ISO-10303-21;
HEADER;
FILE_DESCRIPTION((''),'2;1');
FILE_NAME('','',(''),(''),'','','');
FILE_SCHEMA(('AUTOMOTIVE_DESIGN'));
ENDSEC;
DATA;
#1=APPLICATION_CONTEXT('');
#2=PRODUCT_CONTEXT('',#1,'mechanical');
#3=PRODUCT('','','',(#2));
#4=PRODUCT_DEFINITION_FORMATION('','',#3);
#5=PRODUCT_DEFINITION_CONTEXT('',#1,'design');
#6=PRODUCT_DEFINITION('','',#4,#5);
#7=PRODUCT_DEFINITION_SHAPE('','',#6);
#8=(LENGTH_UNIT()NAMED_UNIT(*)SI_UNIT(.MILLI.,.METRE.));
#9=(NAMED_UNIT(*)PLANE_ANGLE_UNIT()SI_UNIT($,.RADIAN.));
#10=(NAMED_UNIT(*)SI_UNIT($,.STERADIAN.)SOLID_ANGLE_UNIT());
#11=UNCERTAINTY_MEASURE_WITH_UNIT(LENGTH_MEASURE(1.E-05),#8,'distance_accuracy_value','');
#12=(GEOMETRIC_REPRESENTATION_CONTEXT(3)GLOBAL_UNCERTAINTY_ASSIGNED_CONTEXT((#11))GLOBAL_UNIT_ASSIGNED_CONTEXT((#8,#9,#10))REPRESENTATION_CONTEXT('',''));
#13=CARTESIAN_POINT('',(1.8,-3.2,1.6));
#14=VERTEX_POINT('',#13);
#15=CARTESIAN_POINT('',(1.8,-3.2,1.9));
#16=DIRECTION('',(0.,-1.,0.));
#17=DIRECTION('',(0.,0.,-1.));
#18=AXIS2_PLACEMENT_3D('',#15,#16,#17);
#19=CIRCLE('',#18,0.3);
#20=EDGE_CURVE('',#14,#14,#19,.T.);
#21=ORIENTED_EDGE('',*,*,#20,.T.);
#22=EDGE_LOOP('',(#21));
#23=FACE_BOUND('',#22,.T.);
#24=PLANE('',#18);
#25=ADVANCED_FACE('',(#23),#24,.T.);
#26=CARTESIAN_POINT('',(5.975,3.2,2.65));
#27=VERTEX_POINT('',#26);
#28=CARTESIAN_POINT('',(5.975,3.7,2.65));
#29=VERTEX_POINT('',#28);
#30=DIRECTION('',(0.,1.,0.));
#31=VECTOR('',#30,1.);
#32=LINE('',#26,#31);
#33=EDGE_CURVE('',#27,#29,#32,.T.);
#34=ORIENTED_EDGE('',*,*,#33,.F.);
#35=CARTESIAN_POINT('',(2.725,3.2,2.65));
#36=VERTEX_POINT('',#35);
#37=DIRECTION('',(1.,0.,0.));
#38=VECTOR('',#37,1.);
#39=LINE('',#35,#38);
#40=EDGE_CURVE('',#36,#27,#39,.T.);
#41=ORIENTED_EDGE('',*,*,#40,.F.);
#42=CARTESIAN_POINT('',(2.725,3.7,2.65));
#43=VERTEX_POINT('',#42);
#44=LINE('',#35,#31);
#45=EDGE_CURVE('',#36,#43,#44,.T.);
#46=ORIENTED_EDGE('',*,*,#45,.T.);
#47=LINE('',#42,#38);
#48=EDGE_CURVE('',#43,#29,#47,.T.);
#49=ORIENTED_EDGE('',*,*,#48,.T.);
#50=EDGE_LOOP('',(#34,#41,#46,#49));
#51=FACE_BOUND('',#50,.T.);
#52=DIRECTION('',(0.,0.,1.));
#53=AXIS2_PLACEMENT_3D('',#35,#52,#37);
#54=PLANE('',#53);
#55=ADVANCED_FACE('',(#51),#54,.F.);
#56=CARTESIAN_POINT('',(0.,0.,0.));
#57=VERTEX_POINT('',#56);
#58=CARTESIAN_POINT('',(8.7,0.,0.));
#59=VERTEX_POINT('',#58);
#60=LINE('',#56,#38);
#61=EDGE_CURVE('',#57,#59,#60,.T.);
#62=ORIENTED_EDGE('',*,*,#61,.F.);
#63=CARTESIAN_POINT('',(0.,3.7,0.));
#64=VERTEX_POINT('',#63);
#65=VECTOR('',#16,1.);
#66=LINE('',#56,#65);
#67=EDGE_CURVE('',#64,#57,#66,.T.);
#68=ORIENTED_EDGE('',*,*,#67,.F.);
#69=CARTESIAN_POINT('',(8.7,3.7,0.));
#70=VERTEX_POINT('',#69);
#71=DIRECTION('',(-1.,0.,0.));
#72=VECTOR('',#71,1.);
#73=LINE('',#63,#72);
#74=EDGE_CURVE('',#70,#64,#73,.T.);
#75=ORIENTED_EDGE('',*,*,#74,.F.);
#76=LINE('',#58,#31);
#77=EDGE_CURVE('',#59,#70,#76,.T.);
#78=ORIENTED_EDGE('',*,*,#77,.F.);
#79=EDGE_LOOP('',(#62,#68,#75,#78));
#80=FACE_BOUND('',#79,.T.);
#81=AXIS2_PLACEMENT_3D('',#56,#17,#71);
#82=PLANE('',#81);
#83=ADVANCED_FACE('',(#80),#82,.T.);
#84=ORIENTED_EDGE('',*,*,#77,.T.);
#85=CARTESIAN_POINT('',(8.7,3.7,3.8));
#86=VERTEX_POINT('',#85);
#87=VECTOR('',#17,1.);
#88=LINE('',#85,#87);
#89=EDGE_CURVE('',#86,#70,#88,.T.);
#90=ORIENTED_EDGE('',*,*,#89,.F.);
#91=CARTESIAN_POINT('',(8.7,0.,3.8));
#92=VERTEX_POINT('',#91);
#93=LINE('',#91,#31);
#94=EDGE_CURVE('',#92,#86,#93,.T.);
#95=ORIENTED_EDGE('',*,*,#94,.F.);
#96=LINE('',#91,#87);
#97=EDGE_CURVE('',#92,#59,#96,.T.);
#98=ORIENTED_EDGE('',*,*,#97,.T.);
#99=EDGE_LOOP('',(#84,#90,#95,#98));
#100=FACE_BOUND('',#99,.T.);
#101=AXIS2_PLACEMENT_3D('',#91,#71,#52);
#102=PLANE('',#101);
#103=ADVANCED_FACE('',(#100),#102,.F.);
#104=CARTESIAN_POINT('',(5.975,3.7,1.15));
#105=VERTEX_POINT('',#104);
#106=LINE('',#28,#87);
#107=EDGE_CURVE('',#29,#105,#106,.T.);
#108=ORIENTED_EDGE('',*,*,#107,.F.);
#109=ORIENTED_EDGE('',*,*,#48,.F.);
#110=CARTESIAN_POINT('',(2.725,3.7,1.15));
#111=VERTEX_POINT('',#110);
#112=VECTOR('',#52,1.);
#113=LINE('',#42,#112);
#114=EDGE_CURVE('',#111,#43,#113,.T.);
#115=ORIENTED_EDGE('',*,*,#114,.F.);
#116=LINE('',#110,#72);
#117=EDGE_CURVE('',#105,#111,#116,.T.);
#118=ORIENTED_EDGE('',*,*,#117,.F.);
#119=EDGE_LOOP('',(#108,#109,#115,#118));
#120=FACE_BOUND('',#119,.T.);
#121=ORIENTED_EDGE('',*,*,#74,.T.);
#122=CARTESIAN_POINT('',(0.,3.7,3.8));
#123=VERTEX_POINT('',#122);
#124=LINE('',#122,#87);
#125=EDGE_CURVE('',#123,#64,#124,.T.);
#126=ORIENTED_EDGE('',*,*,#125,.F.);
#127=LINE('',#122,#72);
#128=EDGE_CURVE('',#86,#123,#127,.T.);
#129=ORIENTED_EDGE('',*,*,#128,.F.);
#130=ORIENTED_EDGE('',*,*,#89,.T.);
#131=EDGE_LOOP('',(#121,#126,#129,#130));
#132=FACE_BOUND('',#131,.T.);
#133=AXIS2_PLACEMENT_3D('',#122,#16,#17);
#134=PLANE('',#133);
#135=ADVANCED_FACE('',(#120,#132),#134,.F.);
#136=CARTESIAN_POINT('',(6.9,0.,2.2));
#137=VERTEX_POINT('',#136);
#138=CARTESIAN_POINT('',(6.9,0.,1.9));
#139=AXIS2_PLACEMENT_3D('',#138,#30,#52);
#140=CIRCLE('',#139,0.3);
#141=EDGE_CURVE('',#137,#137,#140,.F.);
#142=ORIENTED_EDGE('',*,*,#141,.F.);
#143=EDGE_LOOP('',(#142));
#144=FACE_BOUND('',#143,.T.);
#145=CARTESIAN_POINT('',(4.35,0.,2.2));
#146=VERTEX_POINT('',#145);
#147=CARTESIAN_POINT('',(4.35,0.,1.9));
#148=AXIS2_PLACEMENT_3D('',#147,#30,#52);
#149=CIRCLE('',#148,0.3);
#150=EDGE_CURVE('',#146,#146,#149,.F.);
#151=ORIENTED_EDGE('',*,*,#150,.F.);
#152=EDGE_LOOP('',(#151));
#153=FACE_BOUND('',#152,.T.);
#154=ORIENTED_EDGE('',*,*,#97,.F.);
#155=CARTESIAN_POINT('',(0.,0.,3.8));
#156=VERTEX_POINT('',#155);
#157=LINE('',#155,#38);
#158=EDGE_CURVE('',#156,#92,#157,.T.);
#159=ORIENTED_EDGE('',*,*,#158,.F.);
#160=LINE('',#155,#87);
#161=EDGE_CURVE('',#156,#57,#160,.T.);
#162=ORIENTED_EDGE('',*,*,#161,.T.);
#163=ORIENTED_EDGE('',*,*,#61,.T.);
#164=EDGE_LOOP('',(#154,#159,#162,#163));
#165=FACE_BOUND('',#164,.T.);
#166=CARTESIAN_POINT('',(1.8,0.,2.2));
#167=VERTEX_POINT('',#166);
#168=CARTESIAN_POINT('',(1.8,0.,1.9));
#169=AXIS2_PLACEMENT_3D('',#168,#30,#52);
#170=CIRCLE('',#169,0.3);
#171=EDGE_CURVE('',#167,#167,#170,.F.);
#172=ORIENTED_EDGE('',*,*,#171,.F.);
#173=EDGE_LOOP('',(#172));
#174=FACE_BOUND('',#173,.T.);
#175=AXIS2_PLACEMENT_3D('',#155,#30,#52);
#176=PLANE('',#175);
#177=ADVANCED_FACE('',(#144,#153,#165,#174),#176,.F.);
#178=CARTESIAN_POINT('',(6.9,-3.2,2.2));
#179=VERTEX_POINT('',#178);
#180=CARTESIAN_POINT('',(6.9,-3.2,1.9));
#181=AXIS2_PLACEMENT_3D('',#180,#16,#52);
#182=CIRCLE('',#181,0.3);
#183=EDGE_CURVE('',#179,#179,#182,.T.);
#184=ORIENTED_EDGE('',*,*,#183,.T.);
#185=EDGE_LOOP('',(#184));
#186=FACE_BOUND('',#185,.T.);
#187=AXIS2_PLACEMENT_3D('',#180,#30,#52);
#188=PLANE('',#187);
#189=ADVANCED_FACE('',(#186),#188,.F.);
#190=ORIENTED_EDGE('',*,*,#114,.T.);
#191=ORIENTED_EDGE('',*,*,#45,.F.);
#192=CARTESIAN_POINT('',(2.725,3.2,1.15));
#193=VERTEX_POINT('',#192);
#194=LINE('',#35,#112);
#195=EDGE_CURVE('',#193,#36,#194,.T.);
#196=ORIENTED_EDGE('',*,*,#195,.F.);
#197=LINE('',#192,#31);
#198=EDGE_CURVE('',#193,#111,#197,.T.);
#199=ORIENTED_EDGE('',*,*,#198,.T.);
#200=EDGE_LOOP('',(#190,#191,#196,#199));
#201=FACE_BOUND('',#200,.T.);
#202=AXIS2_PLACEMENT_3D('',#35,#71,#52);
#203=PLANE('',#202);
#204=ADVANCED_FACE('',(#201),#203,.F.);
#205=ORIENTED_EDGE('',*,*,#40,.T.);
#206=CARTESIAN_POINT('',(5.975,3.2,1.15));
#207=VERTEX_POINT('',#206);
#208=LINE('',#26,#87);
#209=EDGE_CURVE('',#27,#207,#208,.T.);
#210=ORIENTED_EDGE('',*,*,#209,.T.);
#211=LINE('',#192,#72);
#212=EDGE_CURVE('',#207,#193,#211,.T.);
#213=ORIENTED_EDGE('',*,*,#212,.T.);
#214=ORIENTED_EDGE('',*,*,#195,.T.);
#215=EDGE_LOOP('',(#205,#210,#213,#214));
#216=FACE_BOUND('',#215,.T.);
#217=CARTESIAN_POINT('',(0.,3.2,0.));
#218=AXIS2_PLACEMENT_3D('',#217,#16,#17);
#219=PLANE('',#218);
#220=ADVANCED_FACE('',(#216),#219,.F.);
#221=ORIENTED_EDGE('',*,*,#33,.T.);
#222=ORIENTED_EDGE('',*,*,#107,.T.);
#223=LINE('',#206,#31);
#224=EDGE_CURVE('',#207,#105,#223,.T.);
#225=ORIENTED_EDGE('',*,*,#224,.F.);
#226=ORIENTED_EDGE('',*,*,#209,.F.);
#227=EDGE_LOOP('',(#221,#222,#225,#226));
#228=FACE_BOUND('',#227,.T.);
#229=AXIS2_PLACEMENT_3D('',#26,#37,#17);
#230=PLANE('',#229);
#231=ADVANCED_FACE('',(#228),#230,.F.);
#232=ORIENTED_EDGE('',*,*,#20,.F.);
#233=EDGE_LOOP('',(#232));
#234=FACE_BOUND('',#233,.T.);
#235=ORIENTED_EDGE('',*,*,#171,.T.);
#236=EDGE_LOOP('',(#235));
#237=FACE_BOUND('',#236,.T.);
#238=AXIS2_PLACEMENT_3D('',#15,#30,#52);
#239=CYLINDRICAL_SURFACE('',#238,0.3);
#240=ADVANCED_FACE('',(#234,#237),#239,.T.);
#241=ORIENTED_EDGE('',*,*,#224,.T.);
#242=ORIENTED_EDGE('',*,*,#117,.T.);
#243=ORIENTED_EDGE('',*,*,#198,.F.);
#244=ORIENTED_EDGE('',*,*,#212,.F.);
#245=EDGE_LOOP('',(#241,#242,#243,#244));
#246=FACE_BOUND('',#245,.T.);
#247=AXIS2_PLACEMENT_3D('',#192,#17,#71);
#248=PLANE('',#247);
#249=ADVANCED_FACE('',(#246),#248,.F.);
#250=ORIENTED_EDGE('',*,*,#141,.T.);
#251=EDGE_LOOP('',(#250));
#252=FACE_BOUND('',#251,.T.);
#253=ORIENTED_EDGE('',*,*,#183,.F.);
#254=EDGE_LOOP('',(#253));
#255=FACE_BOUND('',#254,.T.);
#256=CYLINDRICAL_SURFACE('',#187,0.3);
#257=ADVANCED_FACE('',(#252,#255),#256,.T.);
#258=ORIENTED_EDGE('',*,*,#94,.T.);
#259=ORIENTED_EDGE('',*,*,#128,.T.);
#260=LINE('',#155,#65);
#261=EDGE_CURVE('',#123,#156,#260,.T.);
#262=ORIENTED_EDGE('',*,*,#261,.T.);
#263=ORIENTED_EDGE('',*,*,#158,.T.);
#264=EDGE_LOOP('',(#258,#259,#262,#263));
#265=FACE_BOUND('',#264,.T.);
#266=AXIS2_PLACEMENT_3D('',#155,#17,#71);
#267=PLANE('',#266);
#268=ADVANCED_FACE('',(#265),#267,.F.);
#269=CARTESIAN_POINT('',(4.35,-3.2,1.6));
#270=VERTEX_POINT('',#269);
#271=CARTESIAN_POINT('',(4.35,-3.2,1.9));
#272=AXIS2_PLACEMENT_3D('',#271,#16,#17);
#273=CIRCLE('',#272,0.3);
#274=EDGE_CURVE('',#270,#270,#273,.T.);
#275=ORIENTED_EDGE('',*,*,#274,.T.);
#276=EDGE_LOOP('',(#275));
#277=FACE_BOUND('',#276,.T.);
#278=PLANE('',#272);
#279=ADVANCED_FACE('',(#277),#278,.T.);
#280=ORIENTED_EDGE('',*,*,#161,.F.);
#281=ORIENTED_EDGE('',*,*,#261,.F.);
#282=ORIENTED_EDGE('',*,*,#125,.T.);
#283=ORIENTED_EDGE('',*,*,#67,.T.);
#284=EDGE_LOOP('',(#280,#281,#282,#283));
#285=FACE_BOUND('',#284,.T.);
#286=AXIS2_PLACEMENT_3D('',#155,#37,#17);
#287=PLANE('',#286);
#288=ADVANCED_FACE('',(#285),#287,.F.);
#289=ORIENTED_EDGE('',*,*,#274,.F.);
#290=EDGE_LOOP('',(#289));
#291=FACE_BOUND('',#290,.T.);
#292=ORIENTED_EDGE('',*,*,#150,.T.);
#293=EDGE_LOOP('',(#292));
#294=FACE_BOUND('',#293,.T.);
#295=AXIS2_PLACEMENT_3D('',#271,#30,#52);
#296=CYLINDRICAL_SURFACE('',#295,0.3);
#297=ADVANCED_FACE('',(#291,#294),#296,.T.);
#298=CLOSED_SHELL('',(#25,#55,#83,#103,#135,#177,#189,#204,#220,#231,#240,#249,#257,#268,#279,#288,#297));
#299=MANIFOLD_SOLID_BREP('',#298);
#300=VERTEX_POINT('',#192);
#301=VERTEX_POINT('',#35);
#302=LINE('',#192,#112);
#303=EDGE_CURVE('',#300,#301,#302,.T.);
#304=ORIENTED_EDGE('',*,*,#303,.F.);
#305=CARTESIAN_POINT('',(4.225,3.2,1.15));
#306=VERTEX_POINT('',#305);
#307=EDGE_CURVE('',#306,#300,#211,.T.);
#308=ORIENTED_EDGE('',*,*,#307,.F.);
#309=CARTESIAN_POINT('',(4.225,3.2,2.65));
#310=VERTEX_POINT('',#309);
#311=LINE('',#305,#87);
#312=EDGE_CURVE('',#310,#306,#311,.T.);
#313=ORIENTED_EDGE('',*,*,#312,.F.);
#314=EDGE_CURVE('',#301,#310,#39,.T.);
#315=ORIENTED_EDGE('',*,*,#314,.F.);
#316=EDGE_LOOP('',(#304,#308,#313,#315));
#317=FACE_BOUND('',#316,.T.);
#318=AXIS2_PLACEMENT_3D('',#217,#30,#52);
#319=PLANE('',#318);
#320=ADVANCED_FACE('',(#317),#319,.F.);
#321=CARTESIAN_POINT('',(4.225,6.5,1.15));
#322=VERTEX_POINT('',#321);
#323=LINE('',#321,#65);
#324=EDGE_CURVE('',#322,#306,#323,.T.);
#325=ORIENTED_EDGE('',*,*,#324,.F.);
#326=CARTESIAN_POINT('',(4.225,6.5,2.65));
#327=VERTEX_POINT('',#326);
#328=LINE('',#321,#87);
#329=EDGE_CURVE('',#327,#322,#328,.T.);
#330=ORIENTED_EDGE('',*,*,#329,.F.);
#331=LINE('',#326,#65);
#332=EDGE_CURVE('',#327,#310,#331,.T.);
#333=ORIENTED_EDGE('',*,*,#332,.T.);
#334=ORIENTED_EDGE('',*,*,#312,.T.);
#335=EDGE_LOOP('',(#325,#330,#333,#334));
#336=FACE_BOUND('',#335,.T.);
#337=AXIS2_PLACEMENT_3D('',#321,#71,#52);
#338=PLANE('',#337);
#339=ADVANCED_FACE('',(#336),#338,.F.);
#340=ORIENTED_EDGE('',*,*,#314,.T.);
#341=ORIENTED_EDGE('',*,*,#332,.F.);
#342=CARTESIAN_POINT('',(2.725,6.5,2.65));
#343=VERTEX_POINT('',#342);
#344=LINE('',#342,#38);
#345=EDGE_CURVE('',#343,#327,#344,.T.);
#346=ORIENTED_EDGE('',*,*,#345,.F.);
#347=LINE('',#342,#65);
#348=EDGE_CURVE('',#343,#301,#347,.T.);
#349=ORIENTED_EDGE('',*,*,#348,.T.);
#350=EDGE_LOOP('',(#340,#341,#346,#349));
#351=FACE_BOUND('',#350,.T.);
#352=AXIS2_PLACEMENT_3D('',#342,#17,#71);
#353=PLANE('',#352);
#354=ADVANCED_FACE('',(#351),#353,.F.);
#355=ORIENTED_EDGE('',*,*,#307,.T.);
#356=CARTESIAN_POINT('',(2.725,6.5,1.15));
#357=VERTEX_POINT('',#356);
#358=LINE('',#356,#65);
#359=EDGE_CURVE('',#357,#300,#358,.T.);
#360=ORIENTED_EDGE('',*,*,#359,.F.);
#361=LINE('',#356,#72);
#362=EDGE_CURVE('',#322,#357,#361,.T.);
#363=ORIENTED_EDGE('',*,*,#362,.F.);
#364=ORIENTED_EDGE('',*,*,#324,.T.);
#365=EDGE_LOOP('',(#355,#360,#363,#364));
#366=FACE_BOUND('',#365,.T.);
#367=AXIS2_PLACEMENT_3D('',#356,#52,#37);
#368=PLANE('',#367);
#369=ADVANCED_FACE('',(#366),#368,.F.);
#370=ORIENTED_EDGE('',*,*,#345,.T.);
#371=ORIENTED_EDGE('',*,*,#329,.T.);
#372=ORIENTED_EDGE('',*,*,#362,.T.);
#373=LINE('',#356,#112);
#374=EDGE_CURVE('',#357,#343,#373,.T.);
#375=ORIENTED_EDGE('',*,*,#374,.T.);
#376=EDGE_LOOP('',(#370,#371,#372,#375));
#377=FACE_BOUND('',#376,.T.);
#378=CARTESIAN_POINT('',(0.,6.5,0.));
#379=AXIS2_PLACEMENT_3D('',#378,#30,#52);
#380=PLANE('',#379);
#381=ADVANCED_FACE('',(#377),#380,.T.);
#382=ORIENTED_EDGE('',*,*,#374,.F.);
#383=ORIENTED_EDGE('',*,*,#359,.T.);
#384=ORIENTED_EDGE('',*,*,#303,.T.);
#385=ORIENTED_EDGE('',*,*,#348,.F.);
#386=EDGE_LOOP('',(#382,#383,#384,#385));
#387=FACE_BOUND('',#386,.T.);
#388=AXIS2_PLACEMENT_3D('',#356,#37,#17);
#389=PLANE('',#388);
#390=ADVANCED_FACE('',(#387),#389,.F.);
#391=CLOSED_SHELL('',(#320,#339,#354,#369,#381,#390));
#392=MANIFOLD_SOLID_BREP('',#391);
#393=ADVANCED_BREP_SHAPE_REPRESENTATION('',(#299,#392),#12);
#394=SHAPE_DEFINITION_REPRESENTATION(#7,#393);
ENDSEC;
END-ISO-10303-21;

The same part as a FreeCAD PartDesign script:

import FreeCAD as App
import Part
import Sketcher
from FreeCAD import Vector
Q = App.Units.Quantity

doc = App.newDocument("Part")
body = doc.addObject("PartDesign::Body", "Body")

sketch1 = doc.addObject("Sketcher::SketchObject", "Sketch")
body.addObject(sketch1)
sketch1.AttachmentSupport = (doc.XY_Plane, [""])
sketch1.MapMode = "FlatFace"
sketch1.addGeometry([
    Part.LineSegment(Vector(0, 3.7, 0), Vector(0, 0, 0)),
    Part.LineSegment(Vector(0, 0, 0), Vector(8.7, 0, 0)),
    Part.LineSegment(Vector(8.7, 0, 0), Vector(8.7, 3.7, 0)),
    Part.LineSegment(Vector(8.7, 3.7, 0), Vector(0, 3.7, 0)),
], False)
sketch1.addConstraint([
    Sketcher.Constraint("Coincident", 0, 2, 1, 1),
    Sketcher.Constraint("Coincident", 1, 2, 2, 1),
    Sketcher.Constraint("Coincident", 2, 2, 3, 1),
    Sketcher.Constraint("Coincident", 3, 2, 0, 1),
    Sketcher.Constraint("Vertical", 0),
    Sketcher.Constraint("Horizontal", 1),
    Sketcher.Constraint("Vertical", 2),
    Sketcher.Constraint("Horizontal", 3),
    Sketcher.Constraint("Coincident", 0, 2, -1, 1),
    Sketcher.Constraint("DistanceX", 1, 1, 1, 2, Q("8.7 mm")),
    Sketcher.Constraint("DistanceY", 0, 2, 0, 1, Q("3.7 mm")),
])
pad1 = doc.addObject("PartDesign::Pad", "Pad")
body.addObject(pad1)
pad1.Profile = sketch1
pad1.Length = 3.8

sketch2 = doc.addObject("Sketcher::SketchObject", "Sketch001")
body.addObject(sketch2)
sketch2.AttachmentSupport = (doc.XZ_Plane, [""])
sketch2.MapMode = "FlatFace"
sketch2.AttachmentOffset = App.Placement(Vector(0, 0, -3.7), App.Rotation())
sketch2.addGeometry([
    Part.LineSegment(Vector(2.7, 1.1, 0), Vector(2.7, 2.6, 0)),
    Part.LineSegment(Vector(2.7, 2.6, 0), Vector(6, 2.6, 0)),
    Part.LineSegment(Vector(6, 2.6, 0), Vector(6, 1.1, 0)),
    Part.LineSegment(Vector(6, 1.1, 0), Vector(2.7, 1.1, 0)),
], False)
sketch2.addConstraint([
    Sketcher.Constraint("Coincident", 0, 2, 1, 1),
    Sketcher.Constraint("Coincident", 1, 2, 2, 1),
    Sketcher.Constraint("Coincident", 2, 2, 3, 1),
    Sketcher.Constraint("Coincident", 3, 2, 0, 1),
    Sketcher.Constraint("Vertical", 0),
    Sketcher.Constraint("Horizontal", 1),
    Sketcher.Constraint("Vertical", 2),
    Sketcher.Constraint("Horizontal", 3),
    Sketcher.Constraint("DistanceY", 0, 1, 0, 2, Q("1.5 mm")),
    Sketcher.Constraint("DistanceX", 1, 1, 1, 2, Q("3.25 mm")),
    Sketcher.Constraint("DistanceY", -1, 1, 0, 2, Q("2.65 mm")),
    Sketcher.Constraint("DistanceX", -1, 1, 0, 2, Q("2.725 mm")),
])
pocket1 = doc.addObject("PartDesign::Pocket", "Pocket")
body.addObject(pocket1)
pocket1.Profile = sketch2
pocket1.Length = 0.5
pocket1.Reversed = True

sketch3 = doc.addObject("Sketcher::SketchObject", "Sketch002")
body.addObject(sketch3)
sketch3.AttachmentSupport = (doc.XZ_Plane, [""])
sketch3.MapMode = "FlatFace"
sketch3.addGeometry([
    Part.Circle(Vector(1.8, 1.9, 0), Vector(0, 0, 1), 0.3),
    Part.Circle(Vector(4.35, 1.9, 0), Vector(0, 0, 1), 0.3),
    Part.Circle(Vector(6.9, 1.9, 0), Vector(0, 0, 1), 0.3),
], False)
sketch3.addConstraint([
    Sketcher.Constraint("Equal", 0, 1),
    Sketcher.Constraint("Equal", 1, 2),
    Sketcher.Constraint("Horizontal", 0, 3, 1, 3),
    Sketcher.Constraint("Horizontal", 1, 3, 2, 3),
    Sketcher.Constraint("Diameter", 0, Q("0.6 mm")),
    Sketcher.Constraint("DistanceX", -1, 1, 0, 3, Q("1.8 mm")),
    Sketcher.Constraint("DistanceY", -1, 1, 0, 3, Q("1.9 mm")),
    Sketcher.Constraint("DistanceX", -1, 1, 2, 3, Q("6.9 mm")),
    Sketcher.Constraint("DistanceX", -1, 1, 1, 3, Q("4.35 mm")),
])
pad2 = doc.addObject("PartDesign::Pad", "Pad001")
body.addObject(pad2)
pad2.Profile = sketch3
pad2.Length = 3.2
body2 = doc.addObject("PartDesign::Body", "Body001")

sketch4 = doc.addObject("Sketcher::SketchObject", "Sketch003")
body2.addObject(sketch4)
sketch4.AttachmentSupport = (doc.getObject("XZ_Plane001"), [""])
sketch4.MapMode = "FlatFace"
sketch4.AttachmentOffset = App.Placement(Vector(0, 0, -3.2), App.Rotation())
sketch4.addGeometry([
    Part.LineSegment(Vector(2.7, 1.1, 0), Vector(2.7, 2.6, 0)),
    Part.LineSegment(Vector(2.7, 2.6, 0), Vector(4.2, 2.6, 0)),
    Part.LineSegment(Vector(4.2, 2.6, 0), Vector(4.2, 1.1, 0)),
    Part.LineSegment(Vector(4.2, 1.1, 0), Vector(2.7, 1.1, 0)),
], False)
sketch4.addConstraint([
    Sketcher.Constraint("Coincident", 0, 2, 1, 1),
    Sketcher.Constraint("Coincident", 1, 2, 2, 1),
    Sketcher.Constraint("Coincident", 2, 2, 3, 1),
    Sketcher.Constraint("Coincident", 3, 2, 0, 1),
    Sketcher.Constraint("Vertical", 0),
    Sketcher.Constraint("Horizontal", 1),
    Sketcher.Constraint("Vertical", 2),
    Sketcher.Constraint("Horizontal", 3),
    Sketcher.Constraint("Equal", 3, 0),
    Sketcher.Constraint("DistanceX", 1, 1, 1, 2, Q("1.5 mm")),
    Sketcher.Constraint("DistanceY", -1, 1, 0, 2, Q("2.65 mm")),
    Sketcher.Constraint("DistanceX", -1, 1, 0, 2, Q("2.725 mm")),
])
pad3 = doc.addObject("PartDesign::Pad", "Pad002")
body2.addObject(pad3)
pad3.Profile = sketch4
pad3.Length = 3.3
pad3.Reversed = True

doc.recompute()
